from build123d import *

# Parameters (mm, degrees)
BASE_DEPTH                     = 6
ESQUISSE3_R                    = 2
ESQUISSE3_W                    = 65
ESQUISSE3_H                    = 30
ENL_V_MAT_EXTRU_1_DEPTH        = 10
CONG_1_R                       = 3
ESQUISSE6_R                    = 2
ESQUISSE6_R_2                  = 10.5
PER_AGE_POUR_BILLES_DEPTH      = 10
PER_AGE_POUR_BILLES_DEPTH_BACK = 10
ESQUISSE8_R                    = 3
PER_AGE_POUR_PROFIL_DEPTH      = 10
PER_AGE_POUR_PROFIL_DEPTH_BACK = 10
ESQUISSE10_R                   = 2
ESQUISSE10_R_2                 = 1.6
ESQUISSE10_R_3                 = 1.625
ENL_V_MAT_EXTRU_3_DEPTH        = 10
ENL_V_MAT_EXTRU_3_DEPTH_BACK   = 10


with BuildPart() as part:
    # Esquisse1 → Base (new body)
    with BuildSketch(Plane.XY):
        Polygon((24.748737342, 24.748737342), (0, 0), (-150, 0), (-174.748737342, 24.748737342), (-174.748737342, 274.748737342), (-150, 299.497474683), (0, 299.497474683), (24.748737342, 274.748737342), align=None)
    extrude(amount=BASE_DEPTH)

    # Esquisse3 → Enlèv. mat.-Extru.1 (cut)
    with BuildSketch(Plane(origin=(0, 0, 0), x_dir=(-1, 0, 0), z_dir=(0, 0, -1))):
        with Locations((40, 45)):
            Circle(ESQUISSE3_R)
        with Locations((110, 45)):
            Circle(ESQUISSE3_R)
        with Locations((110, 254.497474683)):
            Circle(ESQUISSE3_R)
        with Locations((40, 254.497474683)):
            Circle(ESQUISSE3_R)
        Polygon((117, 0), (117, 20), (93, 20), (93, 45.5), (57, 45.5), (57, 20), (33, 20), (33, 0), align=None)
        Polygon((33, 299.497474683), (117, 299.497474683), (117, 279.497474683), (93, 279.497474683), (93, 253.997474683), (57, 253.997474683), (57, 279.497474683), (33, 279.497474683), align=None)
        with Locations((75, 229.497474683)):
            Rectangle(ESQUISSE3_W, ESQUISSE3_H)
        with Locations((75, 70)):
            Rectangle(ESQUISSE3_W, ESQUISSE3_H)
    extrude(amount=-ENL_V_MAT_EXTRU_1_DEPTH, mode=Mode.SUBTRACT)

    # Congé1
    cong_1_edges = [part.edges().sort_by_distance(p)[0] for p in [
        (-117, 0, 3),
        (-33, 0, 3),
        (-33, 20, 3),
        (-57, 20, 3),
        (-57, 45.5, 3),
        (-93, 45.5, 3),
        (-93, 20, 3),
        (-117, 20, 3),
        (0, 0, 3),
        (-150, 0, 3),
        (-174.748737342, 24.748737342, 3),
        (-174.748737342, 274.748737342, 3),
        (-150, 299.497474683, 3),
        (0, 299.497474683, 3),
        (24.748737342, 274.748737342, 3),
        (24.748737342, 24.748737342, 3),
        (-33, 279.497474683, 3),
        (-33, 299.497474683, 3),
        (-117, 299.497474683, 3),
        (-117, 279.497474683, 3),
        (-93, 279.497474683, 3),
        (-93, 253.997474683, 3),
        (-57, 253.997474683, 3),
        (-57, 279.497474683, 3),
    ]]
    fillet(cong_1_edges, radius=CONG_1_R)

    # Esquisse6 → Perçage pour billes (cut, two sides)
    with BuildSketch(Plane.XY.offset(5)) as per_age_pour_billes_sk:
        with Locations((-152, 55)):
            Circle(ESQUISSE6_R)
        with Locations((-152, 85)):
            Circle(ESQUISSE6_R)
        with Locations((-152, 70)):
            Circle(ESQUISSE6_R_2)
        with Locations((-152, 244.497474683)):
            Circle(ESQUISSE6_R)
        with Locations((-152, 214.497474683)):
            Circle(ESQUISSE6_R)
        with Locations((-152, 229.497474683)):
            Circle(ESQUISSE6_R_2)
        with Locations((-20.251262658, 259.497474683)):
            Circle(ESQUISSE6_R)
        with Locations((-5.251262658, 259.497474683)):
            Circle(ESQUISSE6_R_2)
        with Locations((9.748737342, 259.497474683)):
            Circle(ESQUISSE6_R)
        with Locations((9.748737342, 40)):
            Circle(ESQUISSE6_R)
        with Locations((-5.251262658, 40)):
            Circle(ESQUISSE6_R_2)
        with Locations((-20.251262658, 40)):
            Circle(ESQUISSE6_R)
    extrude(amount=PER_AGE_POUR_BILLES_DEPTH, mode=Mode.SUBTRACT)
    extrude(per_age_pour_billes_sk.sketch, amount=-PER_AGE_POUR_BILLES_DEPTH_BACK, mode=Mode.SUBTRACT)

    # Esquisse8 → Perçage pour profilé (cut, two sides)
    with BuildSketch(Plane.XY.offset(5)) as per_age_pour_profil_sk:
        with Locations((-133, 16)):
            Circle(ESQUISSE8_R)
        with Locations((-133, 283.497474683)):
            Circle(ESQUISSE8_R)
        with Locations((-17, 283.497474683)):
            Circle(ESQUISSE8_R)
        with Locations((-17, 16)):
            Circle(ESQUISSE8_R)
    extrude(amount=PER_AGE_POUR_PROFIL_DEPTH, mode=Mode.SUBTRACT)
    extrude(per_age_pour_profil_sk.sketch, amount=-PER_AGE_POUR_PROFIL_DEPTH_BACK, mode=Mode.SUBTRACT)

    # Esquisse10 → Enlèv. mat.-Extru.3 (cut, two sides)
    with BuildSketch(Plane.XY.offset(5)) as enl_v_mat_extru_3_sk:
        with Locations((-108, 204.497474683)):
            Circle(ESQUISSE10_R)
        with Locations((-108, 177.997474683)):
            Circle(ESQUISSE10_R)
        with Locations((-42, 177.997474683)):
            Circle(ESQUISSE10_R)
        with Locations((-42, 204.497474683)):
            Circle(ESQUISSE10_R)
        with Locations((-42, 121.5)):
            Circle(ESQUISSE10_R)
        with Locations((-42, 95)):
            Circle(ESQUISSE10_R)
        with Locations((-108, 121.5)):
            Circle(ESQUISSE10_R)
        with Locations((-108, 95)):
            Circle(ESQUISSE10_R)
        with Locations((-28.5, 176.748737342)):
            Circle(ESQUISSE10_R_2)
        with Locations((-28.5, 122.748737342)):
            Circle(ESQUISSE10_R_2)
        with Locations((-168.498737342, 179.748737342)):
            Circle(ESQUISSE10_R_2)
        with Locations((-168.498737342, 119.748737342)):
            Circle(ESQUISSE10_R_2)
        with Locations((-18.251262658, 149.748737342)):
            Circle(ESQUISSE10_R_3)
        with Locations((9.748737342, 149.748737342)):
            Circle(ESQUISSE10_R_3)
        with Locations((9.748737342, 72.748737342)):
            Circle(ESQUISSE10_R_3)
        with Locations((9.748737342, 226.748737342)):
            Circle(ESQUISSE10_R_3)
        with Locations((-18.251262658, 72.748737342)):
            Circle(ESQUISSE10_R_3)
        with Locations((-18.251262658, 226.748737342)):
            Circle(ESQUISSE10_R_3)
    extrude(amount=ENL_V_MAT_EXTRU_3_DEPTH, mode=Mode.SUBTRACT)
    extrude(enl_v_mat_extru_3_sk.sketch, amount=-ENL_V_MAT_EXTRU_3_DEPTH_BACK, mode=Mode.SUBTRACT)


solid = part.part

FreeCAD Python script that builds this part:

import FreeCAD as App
import Part
import Sketcher
from FreeCAD import Vector


def edges_at(feature, points):
    """Names of the edges that pass closest to the given points."""
    edges = feature.Shape.Edges
    near = lambda p: min(range(len(edges)), key=lambda i: edges[i].distToShape(Part.Vertex(*p))[0])
    return sorted({f"Edge{near(p) + 1}" for p in points})


def add_polygon(sketch, points):
    """Adds a closed chain of lines whose ends are joined by coincident constraints."""
    first, n = sketch.GeometryCount, len(points)
    for a, b in zip(points, points[1:] + points[:1]):
        sketch.addGeometry(Part.LineSegment(App.Vector(*a, 0), App.Vector(*b, 0)), False)
    for i in range(n):
        sketch.addConstraint(Sketcher.Constraint("Coincident", first + i, 2, first + (i + 1) % n, 1))

doc = App.newDocument("Part")
body = doc.addObject("PartDesign::Body", "Body")

# Sketch on XY plane
sketch1 = doc.addObject("Sketcher::SketchObject", "Sketch")
body.addObject(sketch1)
sketch1.AttachmentSupport = (doc.XY_Plane, [""])
sketch1.MapMode = "FlatFace"
add_polygon(sketch1, [(0, 0), (25, 25), (25, 275), (0, 299), (-150, 299), (-175, 275), (-175, 25), (-150, 0)])  # lines 0-7
sketch1.addConstraint([
    Sketcher.Constraint("Vertical", 1),
    Sketcher.Constraint("Horizontal", 3),
    Sketcher.Constraint("Vertical", 5),
    Sketcher.Constraint("Horizontal", 7),
    Sketcher.Constraint("Coincident", 7, 2, -1, 1),
    Sketcher.Constraint("PointOnObject", 2, 2, -2),
    Sketcher.Constraint("Perpendicular", 0, 2),
    Sketcher.Constraint("Perpendicular", 2, 4),
    Sketcher.Constraint("Perpendicular", 4, 6),
    Sketcher.Constraint("Horizontal", 1, 2, 4, 2),
    Sketcher.Constraint("Horizontal", 0, 2, 5, 2),
    Sketcher.Constraint("Vertical", 3, 2, 6, 2),
    Sketcher.Constraint("DistanceX", 3, 2, 3, 1, 150.0),
    Sketcher.Constraint("DistanceY", 1, 1, 1, 2, 250.0),
    Sketcher.Constraint("Distance", 0, 35.0),
])
pad1 = doc.addObject("PartDesign::Pad", "Pad")
body.addObject(pad1)
pad1.Profile = sketch1
pad1.Length = 6

# Sketch on XY plane
sketch2 = doc.addObject("Sketcher::SketchObject", "Sketch001")
body.addObject(sketch2)
sketch2.AttachmentSupport = (doc.XY_Plane, [""])
sketch2.MapMode = "FlatFace"
sketch2.addGeometry(Part.Circle(Vector(-40, 45, 0), Vector(0, 0, 1), 2), False)  # 0
sketch2.addGeometry(Part.Circle(Vector(-110, 45, 0), Vector(0, 0, 1), 2), False)  # 1
sketch2.addGeometry(Part.Circle(Vector(-110, 254.5, 0), Vector(0, 0, 1), 2), False)  # 2
sketch2.addGeometry(Part.Circle(Vector(-40, 254.5, 0), Vector(0, 0, 1), 2), False)  # 3
add_polygon(sketch2, [(-117, 0), (-117, 20), (-93, 20), (-93, 45.5), (-57, 45.5), (-57, 20), (-33, 20), (-33, 0)])  # lines 4-11
add_polygon(sketch2, [(-117, 299.5), (-33, 299.5), (-33, 279.5), (-57, 279.5), (-57, 254), (-93, 254), (-93, 279.5), (-117, 279.5)])  # lines 12-19
add_polygon(sketch2, [(-42.5, 244.5), (-42.5, 214.5), (-107.5, 214.5), (-107.5, 244.5)])  # lines 20-23
add_polygon(sketch2, [(-42.5, 85), (-42.5, 55), (-107.5, 55), (-107.5, 85)])  # lines 24-27
sketch2.addConstraint([
    Sketcher.Constraint("Vertical", 4),
    Sketcher.Constraint("Horizontal", 5),
    Sketcher.Constraint("Vertical", 6),
    Sketcher.Constraint("Horizontal", 7),
    Sketcher.Constraint("Vertical", 8),
    Sketcher.Constraint("Horizontal", 9),
    Sketcher.Constraint("Vertical", 10),
    Sketcher.Constraint("Horizontal", 11),
    Sketcher.Constraint("Horizontal", 12),
    Sketcher.Constraint("Vertical", 13),
    Sketcher.Constraint("Horizontal", 14),
    Sketcher.Constraint("Vertical", 15),
    Sketcher.Constraint("Horizontal", 16),
    Sketcher.Constraint("Vertical", 17),
    Sketcher.Constraint("Horizontal", 18),
    Sketcher.Constraint("Vertical", 19),
    Sketcher.Constraint("Vertical", 20),
    Sketcher.Constraint("Horizontal", 21),
    Sketcher.Constraint("Vertical", 22),
    Sketcher.Constraint("Horizontal", 23),
    Sketcher.Constraint("Vertical", 24),
    Sketcher.Constraint("Horizontal", 25),
    Sketcher.Constraint("Vertical", 26),
    Sketcher.Constraint("Horizontal", 27),
    Sketcher.Constraint("Equal", 0, 1),
    Sketcher.Constraint("Equal", 1, 2),
    Sketcher.Constraint("Equal", 2, 3),
    Sketcher.Constraint("PointOnObject", 10, 2, -1),
    Sketcher.Constraint("Horizontal", 0, 3, 1, 3),
    Sketcher.Constraint("Horizontal", 2, 3, 3, 3),
    Sketcher.Constraint("Horizontal", 5, 2, 8, 2),
    Sketcher.Constraint("Horizontal", 14, 2, 17, 2),
    Sketcher.Constraint("Vertical", 1, 3, 2, 3),
    Sketcher.Constraint("Vertical", 0, 3, 3, 3),
    Sketcher.Constraint("Vertical", 10, 2, 12, 2),
    Sketcher.Constraint("Vertical", 8, 2, 14, 2),
    Sketcher.Constraint("Vertical", 6, 2, 16, 2),
    Sketcher.Constraint("Vertical", 11, 2, 18, 2),
    Sketcher.Constraint("Vertical", 23, 2, 24, 2),
    Sketcher.Constraint("Vertical", 22, 2, 25, 2),
    Sketcher.Constraint("Equal", 5, 9),
    Sketcher.Constraint("Equal", 10, 13),
    Sketcher.Constraint("Equal", 8, 15),
    Sketcher.Constraint("Equal", 22, 24),
    Sketcher.Constraint("Diameter", 0, 4.0),
    Sketcher.Constraint("DistanceX", 5, 1, 5, 2, 24.0),
    Sketcher.Constraint("DistanceX", 7, 1, 7, 2, 36.0),
    Sketcher.Constraint("DistanceX", 21, 2, 21, 1, 65.0),
    Sketcher.Constraint("DistanceY", 4, 1, 4, 2, 20.0),
    Sketcher.Constraint("DistanceY", 20, 2, 20, 1, 30.0),
    Sketcher.Constraint("DistanceY", 6, 1, 6, 2, 25.5),
    Sketcher.Constraint("DistanceX", 0, 3, -1, 1, 40.0),
    Sketcher.Constraint("DistanceY", -1, 1, 0, 3, 45.0),
    Sketcher.Constraint("DistanceX", 1, 3, -1, 1, 110.0),
    Sketcher.Constraint("DistanceX", 4, 2, -1, 1, 117.0),
    Sketcher.Constraint("DistanceY", -1, 1, 24, 2, 55.0),
    Sketcher.Constraint("DistanceY", 3, 3, 12, 2, 45.0),
    Sketcher.Constraint("DistanceY", 20, 2, 3, 3, 40.0),
    Sketcher.Constraint("DistanceX", 20, 2, -1, 1, 42.5),
    Sketcher.Constraint("DistanceY", -1, 1, 2, 3, 254.497475),
])
pocket1 = doc.addObject("PartDesign::Pocket", "Pocket")
body.addObject(pocket1)
pocket1.Profile = sketch2
pocket1.Length = 10
pocket1.Reversed = True
doc.recompute()

fillet = doc.addObject("PartDesign::Fillet", "Fillet")
body.addObject(fillet)
fillet.Base = (pocket1, edges_at(pocket1, [
    (-117, 0, 3),
    (-33, 0, 3),
    (-33, 20, 3),
    (-57, 20, 3),
    (-57, 45.5, 3),
    (-93, 45.5, 3),
    (-93, 20, 3),
    (-117, 20, 3),
    (0, 0, 3),
    (-150, 0, 3),
    (-174.749, 24.749, 3),
    (-174.749, 274.749, 3),
    (-150, 299.497, 3),
    (0, 299.497, 3),
    (24.749, 274.749, 3),
    (24.749, 24.749, 3),
    (-33, 279.497, 3),
    (-33, 299.497, 3),
    (-117, 299.497, 3),
    (-117, 279.497, 3),
    (-93, 279.497, 3),
    (-93, 253.997, 3),
    (-57, 253.997, 3),
    (-57, 279.497, 3),
]))
fillet.Radius = 3

# Sketch on XY plane
sketch3 = doc.addObject("Sketcher::SketchObject", "Sketch002")
body.addObject(sketch3)
sketch3.AttachmentSupport = (doc.XY_Plane, [""])
sketch3.MapMode = "FlatFace"
sketch3.AttachmentOffset = App.Placement(Vector(0, 0, 5), App.Rotation())
sketch3.addGeometry([
    Part.Circle(Vector(-152, 55, 0), Vector(0, 0, 1), 2),  # 0
    Part.Circle(Vector(-152, 85, 0), Vector(0, 0, 1), 2),  # 1
    Part.Circle(Vector(-152, 70, 0), Vector(0, 0, 1), 10.5),  # 2
    Part.Circle(Vector(-152, 244.5, 0), Vector(0, 0, 1), 2),  # 3
    Part.Circle(Vector(-152, 214.5, 0), Vector(0, 0, 1), 2),  # 4
    Part.Circle(Vector(-152, 229.5, 0), Vector(0, 0, 1), 10.5),  # 5
    Part.Circle(Vector(-20.3, 259.5, 0), Vector(0, 0, 1), 2),  # 6
    Part.Circle(Vector(-5.3, 259.5, 0), Vector(0, 0, 1), 10.5),  # 7
    Part.Circle(Vector(9.7, 259.5, 0), Vector(0, 0, 1), 2),  # 8
    Part.Circle(Vector(9.7, 40, 0), Vector(0, 0, 1), 2),  # 9
    Part.Circle(Vector(-5.3, 40, 0), Vector(0, 0, 1), 10.5),  # 10
    Part.Circle(Vector(-20.3, 40, 0), Vector(0, 0, 1), 2),  # 11
], False)
sketch3.addConstraint([
    Sketcher.Constraint("Equal", 0, 1),
    Sketcher.Constraint("Equal", 1, 3),
    Sketcher.Constraint("Equal", 3, 4),
    Sketcher.Constraint("Equal", 2, 5),
    Sketcher.Constraint("Equal", 4, 6),
    Sketcher.Constraint("Equal", 5, 7),
    Sketcher.Constraint("Equal", 6, 8),
    Sketcher.Constraint("Equal", 8, 9),
    Sketcher.Constraint("Equal", 7, 10),
    Sketcher.Constraint("Equal", 9, 11),
    Sketcher.Constraint("Horizontal", 6, 3, 7, 3),
    Sketcher.Constraint("Horizontal", 7, 3, 8, 3),
    Sketcher.Constraint("Horizontal", 9, 3, 10, 3),
    Sketcher.Constraint("Horizontal", 10, 3, 11, 3),
    Sketcher.Constraint("Vertical", 0, 3, 1, 3),
    Sketcher.Constraint("Vertical", 1, 3, 2, 3),
    Sketcher.Constraint("Vertical", 2, 3, 3, 3),
    Sketcher.Constraint("Vertical", 3, 3, 4, 3),
    Sketcher.Constraint("Vertical", 4, 3, 5, 3),
    Sketcher.Constraint("Vertical", 8, 3, 9, 3),
    Sketcher.Constraint("Vertical", 7, 3, 10, 3),
    Sketcher.Constraint("Vertical", 6, 3, 11, 3),
    Sketcher.Constraint("Diameter", 0, 4.0),
    Sketcher.Constraint("Diameter", 2, 21.0),
    Sketcher.Constraint("DistanceX", 0, 3, -1, 1, 152.0),
    Sketcher.Constraint("DistanceY", -1, 1, 0, 3, 55.0),
    Sketcher.Constraint("DistanceY", -1, 1, 1, 3, 85.0),
    Sketcher.Constraint("DistanceY", -1, 1, 2, 3, 70.0),
    Sketcher.Constraint("DistanceY", -1, 1, 9, 3, 40.0),
    Sketcher.Constraint("DistanceY", 4, 3, 3, 3, 30.0),
    Sketcher.Constraint("DistanceY", 5, 3, 3, 3, 15.0),
    Sketcher.Constraint("DistanceY", 3, 3, 6, 3, 15.0),
    Sketcher.Constraint("DistanceX", 6, 3, 7, 3, 15.0),
    Sketcher.Constraint("DistanceX", 7, 3, 8, 3, 15.0),
    Sketcher.Constraint("DistanceY", -1, 1, 3, 3, 244.497475),
    Sketcher.Constraint("DistanceX", 6, 3, -1, 1, 20.251263),
])
pocket2 = doc.addObject("PartDesign::Pocket", "Pocket001")
body.addObject(pocket2)
pocket2.Profile = sketch3
pocket2.Type = "ThroughAll"
pocket2.Midplane = True

# Sketch on XY plane
sketch4 = doc.addObject("Sketcher::SketchObject", "Sketch003")
body.addObject(sketch4)
sketch4.AttachmentSupport = (doc.XY_Plane, [""])
sketch4.MapMode = "FlatFace"
sketch4.AttachmentOffset = App.Placement(Vector(0, 0, 5), App.Rotation())
sketch4.addGeometry([
    Part.Circle(Vector(-133, 16, 0), Vector(0, 0, 1), 3),
    Part.Circle(Vector(-133, 283.5, 0), Vector(0, 0, 1), 3),
    Part.Circle(Vector(-17, 283.5, 0), Vector(0, 0, 1), 3),
    Part.Circle(Vector(-17, 16, 0), Vector(0, 0, 1), 3),
], False)
sketch4.addConstraint([
    Sketcher.Constraint("Equal", 0, 1),
    Sketcher.Constraint("Equal", 1, 2),
    Sketcher.Constraint("Equal", 2, 3),
    Sketcher.Constraint("Horizontal", 1, 3, 2, 3),
    Sketcher.Constraint("Horizontal", 0, 3, 3, 3),
    Sketcher.Constraint("Vertical", 0, 3, 1, 3),
    Sketcher.Constraint("Vertical", 2, 3, 3, 3),
    Sketcher.Constraint("Diameter", 0, 6.0),
    Sketcher.Constraint("DistanceX", 0, 3, -1, 1, 133.0),
    Sketcher.Constraint("DistanceY", -1, 1, 0, 3, 16.0),
    Sketcher.Constraint("DistanceX", 2, 3, -1, 1, 17.0),
    Sketcher.Constraint("DistanceY", -1, 1, 1, 3, 283.497475),
])
pocket3 = doc.addObject("PartDesign::Pocket", "Pocket002")
body.addObject(pocket3)
pocket3.Profile = sketch4
pocket3.Type = "ThroughAll"
pocket3.Midplane = True

# Sketch on XY plane
sketch5 = doc.addObject("Sketcher::SketchObject", "Sketch004")
body.addObject(sketch5)
sketch5.AttachmentSupport = (doc.XY_Plane, [""])
sketch5.MapMode = "FlatFace"
sketch5.AttachmentOffset = App.Placement(Vector(0, 0, 5), App.Rotation())
sketch5.addGeometry([
    Part.Circle(Vector(-108, 204.5, 0), Vector(0, 0, 1), 2),  # 0
    Part.Circle(Vector(-108, 178, 0), Vector(0, 0, 1), 2),  # 1
    Part.Circle(Vector(-42, 178, 0), Vector(0, 0, 1), 2),  # 2
    Part.Circle(Vector(-42, 204.5, 0), Vector(0, 0, 1), 2),  # 3
    Part.Circle(Vector(-42, 121.5, 0), Vector(0, 0, 1), 2),  # 4
    Part.Circle(Vector(-42, 95, 0), Vector(0, 0, 1), 2),  # 5
    Part.Circle(Vector(-108, 121.5, 0), Vector(0, 0, 1), 2),  # 6
    Part.Circle(Vector(-108, 95, 0), Vector(0, 0, 1), 2),  # 7
    Part.Circle(Vector(-28.5, 176.7, 0), Vector(0, 0, 1), 1.6),  # 8
    Part.Circle(Vector(-28.5, 122.7, 0), Vector(0, 0, 1), 1.6),  # 9
    Part.Circle(Vector(-168.5, 179.7, 0), Vector(0, 0, 1), 1.6),  # 10
    Part.Circle(Vector(-168.5, 119.7, 0), Vector(0, 0, 1), 1.6),  # 11
    Part.Circle(Vector(-18.3, 149.7, 0), Vector(0, 0, 1), 1.6),  # 12
    Part.Circle(Vector(9.7, 149.7, 0), Vector(0, 0, 1), 1.6),  # 13
    Part.Circle(Vector(9.7, 72.7, 0), Vector(0, 0, 1), 1.6),  # 14
    Part.Circle(Vector(9.7, 226.7, 0), Vector(0, 0, 1), 1.6),  # 15
    Part.Circle(Vector(-18.3, 72.7, 0), Vector(0, 0, 1), 1.6),  # 16
    Part.Circle(Vector(-18.3, 226.7, 0), Vector(0, 0, 1), 1.6),  # 17
], False)
sketch5.addConstraint([
    Sketcher.Constraint("Equal", 0, 1),
    Sketcher.Constraint("Equal", 1, 2),
    Sketcher.Constraint("Equal", 2, 3),
    Sketcher.Constraint("Equal", 3, 4),
    Sketcher.Constraint("Equal", 4, 5),
    Sketcher.Constraint("Equal", 5, 6),
    Sketcher.Constraint("Equal", 6, 7),
    Sketcher.Constraint("Equal", 8, 9),
    Sketcher.Constraint("Equal", 9, 10),
    Sketcher.Constraint("Equal", 10, 11),
    Sketcher.Constraint("Equal", 12, 13),
    Sketcher.Constraint("Equal", 13, 14),
    Sketcher.Constraint("Equal", 14, 15),
    Sketcher.Constraint("Equal", 15, 16),
    Sketcher.Constraint("Equal", 16, 17),
    Sketcher.Constraint("Horizontal", 1, 3, 2, 3),
    Sketcher.Constraint("Horizontal", 0, 3, 3, 3),
    Sketcher.Constraint("Horizontal", 4, 3, 6, 3),
    Sketcher.Constraint("Horizontal", 5, 3, 7, 3),
    Sketcher.Constraint("Horizontal", 12, 3, 13, 3),
    Sketcher.Constraint("Horizontal", 14, 3, 16, 3),
    Sketcher.Constraint("Horizontal", 15, 3, 17, 3),
    Sketcher.Constraint("Vertical", 0, 3, 1, 3),
    Sketcher.Constraint("Vertical", 2, 3, 3, 3),
    Sketcher.Constraint("Vertical", 3, 3, 4, 3),
    Sketcher.Constraint("Vertical", 4, 3, 5, 3),
    Sketcher.Constraint("Vertical", 1, 3, 6, 3),
    Sketcher.Constraint("Vertical", 6, 3, 7, 3),
    Sketcher.Constraint("Vertical", 8, 3, 9, 3),
    Sketcher.Constraint("Vertical", 10, 3, 11, 3),
    Sketcher.Constraint("Vertical", 13, 3, 14, 3),
    Sketcher.Constraint("Vertical", 14, 3, 15, 3),
    Sketcher.Constraint("Vertical", 12, 3, 16, 3),
    Sketcher.Constraint("Vertical", 16, 3, 17, 3),
    Sketcher.Constraint("Diameter", 0, 4.0),
    Sketcher.Constraint("Diameter", 8, 3.2),
    Sketcher.Constraint("Diameter", 12, 3.25),
    Sketcher.Constraint("DistanceX", 0, 3, -1, 1, 108.0),
    Sketcher.Constraint("DistanceX", 2, 3, -1, 1, 42.0),
    Sketcher.Constraint("DistanceY", -1, 1, 5, 3, 95.0),
    Sketcher.Constraint("DistanceY", 9, 3, 8, 3, 54.0),
    Sketcher.Constraint("DistanceY", 11, 3, 10, 3, 60.0),
    Sketcher.Constraint("DistanceY", 12, 3, 8, 3, 27.0),
    Sketcher.Constraint("DistanceX", 12, 3, 13, 3, 28.0),
    Sketcher.Constraint("DistanceY", 14, 3, 9, 3, 50.0),
    Sketcher.Constraint("DistanceY", 8, 3, 15, 3, 50.0),
    Sketcher.Constraint("DistanceY", -1, 1, 4, 3, 121.5),
    Sketcher.Constraint("DistanceX", 8, 3, -1, 1, 28.5),
    Sketcher.Constraint("DistanceY", 1, 3, 0, 3, 26.5),
    Sketcher.Constraint("DistanceY", -1, 1, 0, 3, 204.497475),
    Sketcher.Constraint("DistanceY", -1, 1, 8, 3, 176.748737),
    Sketcher.Constraint("DistanceX", 10, 3, -1, 1, 168.498737),
    Sketcher.Constraint("DistanceY", -1, 1, 10, 3, 179.748737),
    Sketcher.Constraint("DistanceX", 12, 3, -1, 1, 18.251263),
])
pocket4 = doc.addObject("PartDesign::Pocket", "Pocket003")
body.addObject(pocket4)
pocket4.Profile = sketch5
pocket4.Type = "ThroughAll"
pocket4.Midplane = True

doc.recompute()
